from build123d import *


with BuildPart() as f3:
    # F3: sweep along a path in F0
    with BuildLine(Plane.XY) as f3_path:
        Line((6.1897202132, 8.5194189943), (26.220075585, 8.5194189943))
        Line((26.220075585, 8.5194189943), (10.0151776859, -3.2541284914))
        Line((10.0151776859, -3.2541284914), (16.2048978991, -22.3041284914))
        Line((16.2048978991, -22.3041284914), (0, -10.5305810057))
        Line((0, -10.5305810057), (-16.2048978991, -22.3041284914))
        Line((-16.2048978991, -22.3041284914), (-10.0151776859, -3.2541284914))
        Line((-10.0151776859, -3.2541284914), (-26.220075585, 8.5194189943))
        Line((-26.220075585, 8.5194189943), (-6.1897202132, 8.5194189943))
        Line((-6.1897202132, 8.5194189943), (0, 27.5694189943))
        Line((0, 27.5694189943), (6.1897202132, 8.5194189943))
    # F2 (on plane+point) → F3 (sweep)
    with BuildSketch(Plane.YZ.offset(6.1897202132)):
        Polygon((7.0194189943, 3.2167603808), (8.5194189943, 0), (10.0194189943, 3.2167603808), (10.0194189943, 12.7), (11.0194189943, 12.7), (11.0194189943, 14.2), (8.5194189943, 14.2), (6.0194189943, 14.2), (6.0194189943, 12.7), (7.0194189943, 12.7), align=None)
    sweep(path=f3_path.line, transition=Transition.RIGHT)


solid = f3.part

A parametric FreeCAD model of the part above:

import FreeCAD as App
import Part
import Sketcher

V = App.Vector
Q = App.Units.Quantity


def add_polygon(sketch, points):
    """Adds a closed chain of lines whose ends are joined by coincident constraints."""
    first, n = sketch.GeometryCount, len(points)
    for a, b in zip(points, points[1:] + points[:1]):
        sketch.addGeometry(Part.LineSegment(App.Vector(*a, 0), App.Vector(*b, 0)), False)
    for i in range(n):
        sketch.addConstraint(Sketcher.Constraint("Coincident", first + i, 2, first + (i + 1) % n, 1))

doc = App.newDocument("Part")
params = doc.addObject("Spreadsheet::Sheet", "Params")
for row, (alias, value) in enumerate([
    ("sketch1_width", "1 mm"),
    ("sketch1_width2", "5 mm"),
    ("sketch1_height", "1.5 mm"),
], start=1):
    params.set(f"A{row}", alias)
    params.set(f"B{row}", "=" + value)
    params.setAlias(f"B{row}", alias)

body = doc.addObject("PartDesign::Body", "Body")

# Sketch on YZ plane
sketch1 = doc.addObject("Sketcher::SketchObject", "Sketch")
body.addObject(sketch1)
sketch1.AttachmentSupport = (doc.YZ_Plane, [""])
sketch1.MapMode = "FlatFace"
sketch1.AttachmentOffset = App.Placement(V(0, 0, 6.18972), App.Rotation())
add_polygon(sketch1, [(7, 3.2), (8.5, 0), (10, 3.2), (10, 12.7), (11, 12.7), (11, 14.2), (6, 14.2), (6, 12.7), (7, 12.7)])  # lines 0-8
sketch1.addConstraint([
    Sketcher.Constraint("Vertical", 2),
    Sketcher.Constraint("Horizontal", 3),
    Sketcher.Constraint("Vertical", 4),
    Sketcher.Constraint("Horizontal", 5),
    Sketcher.Constraint("Vertical", 6),
    Sketcher.Constraint("Horizontal", 7),
    Sketcher.Constraint("Vertical", 8),
    Sketcher.Constraint("PointOnObject", 0, 2, -1),
    Sketcher.Constraint("Horizontal", 3, 2, 6, 2),
    Sketcher.Constraint("Horizontal", 1, 2, 8, 2),
    Sketcher.Constraint("Equal", 3, 7),
    Sketcher.Constraint("Equal", 0, 1),
    Sketcher.Constraint("DistanceX", 3, 1, 3, 2, 1.0),
    Sketcher.Constraint("DistanceX", 5, 2, 5, 1, 5.0),
    Sketcher.Constraint("Angle", 0, Q("-65 deg")),
    Sketcher.Constraint("DistanceY", 4, 1, 4, 2, 1.5),
    Sketcher.Constraint("DistanceY", -1, 1, 2, 2, 12.7),
    Sketcher.Constraint("DistanceX", -1, 1, 0, 2, 8.519419),
])
sketch1.setExpression("Constraints[21]", "Params.sketch1_width")
sketch1.setExpression("Constraints[22]", "Params.sketch1_width2")
sketch1.setExpression("Constraints[24]", "Params.sketch1_height")

# Sketch on XY plane
sketch2 = doc.addObject("Sketcher::SketchObject", "Sketch001")
body.addObject(sketch2)
sketch2.AttachmentSupport = (doc.XY_Plane, [""])
sketch2.MapMode = "FlatFace"
add_polygon(sketch2, [(6, 9), (26, 9), (10, -3), (16, -22), (0, -11), (-16, -22), (-10, -3), (-26, 9), (-6, 9), (0, 28)])  # lines 0-9
sketch2.addConstraint([
    Sketcher.Constraint("Horizontal", 0),
    Sketcher.Constraint("Horizontal", 7),
    Sketcher.Constraint("Symmetric", 2, 2, 4, 2, -2),
    Sketcher.Constraint("Symmetric", 1, 2, 5, 2, -2),
    Sketcher.Constraint("Symmetric", 0, 2, 6, 2, -2),
    Sketcher.Constraint("PointOnObject", 3, 2, -2),
    Sketcher.Constraint("PointOnObject", 8, 2, -2),
    Sketcher.Constraint("Parallel", 1, 4),
    Sketcher.Constraint("Parallel", 5, 8),
    Sketcher.Constraint("Parallel", 2, 9),
    Sketcher.Constraint("Equal", 1, 2),
    Sketcher.Constraint("Equal", 2, 3),
    Sketcher.Constraint("Equal", 6, 8),
    Sketcher.Constraint("Angle", 1, Q("-144 deg")),
    Sketcher.Constraint("Angle", 2, Q("-72 deg")),
    Sketcher.Constraint("DistanceY", 2, 2, 1, 2, 19.05),
    Sketcher.Constraint("DistanceY", -1, 1, 0, 2, 8.519419),
])
doc.recompute()

additivepipe = doc.addObject("PartDesign::AdditivePipe", "AdditivePipe")
body.addObject(additivepipe)
additivepipe.Profile = sketch1
additivepipe.Spine = (sketch2, ["Edge1", "Edge2", "Edge3", "Edge4", "Edge5", "Edge6", "Edge7", "Edge8", "Edge9", "Edge10"])
additivepipe.Transition = "Right corner"

doc.recompute()
